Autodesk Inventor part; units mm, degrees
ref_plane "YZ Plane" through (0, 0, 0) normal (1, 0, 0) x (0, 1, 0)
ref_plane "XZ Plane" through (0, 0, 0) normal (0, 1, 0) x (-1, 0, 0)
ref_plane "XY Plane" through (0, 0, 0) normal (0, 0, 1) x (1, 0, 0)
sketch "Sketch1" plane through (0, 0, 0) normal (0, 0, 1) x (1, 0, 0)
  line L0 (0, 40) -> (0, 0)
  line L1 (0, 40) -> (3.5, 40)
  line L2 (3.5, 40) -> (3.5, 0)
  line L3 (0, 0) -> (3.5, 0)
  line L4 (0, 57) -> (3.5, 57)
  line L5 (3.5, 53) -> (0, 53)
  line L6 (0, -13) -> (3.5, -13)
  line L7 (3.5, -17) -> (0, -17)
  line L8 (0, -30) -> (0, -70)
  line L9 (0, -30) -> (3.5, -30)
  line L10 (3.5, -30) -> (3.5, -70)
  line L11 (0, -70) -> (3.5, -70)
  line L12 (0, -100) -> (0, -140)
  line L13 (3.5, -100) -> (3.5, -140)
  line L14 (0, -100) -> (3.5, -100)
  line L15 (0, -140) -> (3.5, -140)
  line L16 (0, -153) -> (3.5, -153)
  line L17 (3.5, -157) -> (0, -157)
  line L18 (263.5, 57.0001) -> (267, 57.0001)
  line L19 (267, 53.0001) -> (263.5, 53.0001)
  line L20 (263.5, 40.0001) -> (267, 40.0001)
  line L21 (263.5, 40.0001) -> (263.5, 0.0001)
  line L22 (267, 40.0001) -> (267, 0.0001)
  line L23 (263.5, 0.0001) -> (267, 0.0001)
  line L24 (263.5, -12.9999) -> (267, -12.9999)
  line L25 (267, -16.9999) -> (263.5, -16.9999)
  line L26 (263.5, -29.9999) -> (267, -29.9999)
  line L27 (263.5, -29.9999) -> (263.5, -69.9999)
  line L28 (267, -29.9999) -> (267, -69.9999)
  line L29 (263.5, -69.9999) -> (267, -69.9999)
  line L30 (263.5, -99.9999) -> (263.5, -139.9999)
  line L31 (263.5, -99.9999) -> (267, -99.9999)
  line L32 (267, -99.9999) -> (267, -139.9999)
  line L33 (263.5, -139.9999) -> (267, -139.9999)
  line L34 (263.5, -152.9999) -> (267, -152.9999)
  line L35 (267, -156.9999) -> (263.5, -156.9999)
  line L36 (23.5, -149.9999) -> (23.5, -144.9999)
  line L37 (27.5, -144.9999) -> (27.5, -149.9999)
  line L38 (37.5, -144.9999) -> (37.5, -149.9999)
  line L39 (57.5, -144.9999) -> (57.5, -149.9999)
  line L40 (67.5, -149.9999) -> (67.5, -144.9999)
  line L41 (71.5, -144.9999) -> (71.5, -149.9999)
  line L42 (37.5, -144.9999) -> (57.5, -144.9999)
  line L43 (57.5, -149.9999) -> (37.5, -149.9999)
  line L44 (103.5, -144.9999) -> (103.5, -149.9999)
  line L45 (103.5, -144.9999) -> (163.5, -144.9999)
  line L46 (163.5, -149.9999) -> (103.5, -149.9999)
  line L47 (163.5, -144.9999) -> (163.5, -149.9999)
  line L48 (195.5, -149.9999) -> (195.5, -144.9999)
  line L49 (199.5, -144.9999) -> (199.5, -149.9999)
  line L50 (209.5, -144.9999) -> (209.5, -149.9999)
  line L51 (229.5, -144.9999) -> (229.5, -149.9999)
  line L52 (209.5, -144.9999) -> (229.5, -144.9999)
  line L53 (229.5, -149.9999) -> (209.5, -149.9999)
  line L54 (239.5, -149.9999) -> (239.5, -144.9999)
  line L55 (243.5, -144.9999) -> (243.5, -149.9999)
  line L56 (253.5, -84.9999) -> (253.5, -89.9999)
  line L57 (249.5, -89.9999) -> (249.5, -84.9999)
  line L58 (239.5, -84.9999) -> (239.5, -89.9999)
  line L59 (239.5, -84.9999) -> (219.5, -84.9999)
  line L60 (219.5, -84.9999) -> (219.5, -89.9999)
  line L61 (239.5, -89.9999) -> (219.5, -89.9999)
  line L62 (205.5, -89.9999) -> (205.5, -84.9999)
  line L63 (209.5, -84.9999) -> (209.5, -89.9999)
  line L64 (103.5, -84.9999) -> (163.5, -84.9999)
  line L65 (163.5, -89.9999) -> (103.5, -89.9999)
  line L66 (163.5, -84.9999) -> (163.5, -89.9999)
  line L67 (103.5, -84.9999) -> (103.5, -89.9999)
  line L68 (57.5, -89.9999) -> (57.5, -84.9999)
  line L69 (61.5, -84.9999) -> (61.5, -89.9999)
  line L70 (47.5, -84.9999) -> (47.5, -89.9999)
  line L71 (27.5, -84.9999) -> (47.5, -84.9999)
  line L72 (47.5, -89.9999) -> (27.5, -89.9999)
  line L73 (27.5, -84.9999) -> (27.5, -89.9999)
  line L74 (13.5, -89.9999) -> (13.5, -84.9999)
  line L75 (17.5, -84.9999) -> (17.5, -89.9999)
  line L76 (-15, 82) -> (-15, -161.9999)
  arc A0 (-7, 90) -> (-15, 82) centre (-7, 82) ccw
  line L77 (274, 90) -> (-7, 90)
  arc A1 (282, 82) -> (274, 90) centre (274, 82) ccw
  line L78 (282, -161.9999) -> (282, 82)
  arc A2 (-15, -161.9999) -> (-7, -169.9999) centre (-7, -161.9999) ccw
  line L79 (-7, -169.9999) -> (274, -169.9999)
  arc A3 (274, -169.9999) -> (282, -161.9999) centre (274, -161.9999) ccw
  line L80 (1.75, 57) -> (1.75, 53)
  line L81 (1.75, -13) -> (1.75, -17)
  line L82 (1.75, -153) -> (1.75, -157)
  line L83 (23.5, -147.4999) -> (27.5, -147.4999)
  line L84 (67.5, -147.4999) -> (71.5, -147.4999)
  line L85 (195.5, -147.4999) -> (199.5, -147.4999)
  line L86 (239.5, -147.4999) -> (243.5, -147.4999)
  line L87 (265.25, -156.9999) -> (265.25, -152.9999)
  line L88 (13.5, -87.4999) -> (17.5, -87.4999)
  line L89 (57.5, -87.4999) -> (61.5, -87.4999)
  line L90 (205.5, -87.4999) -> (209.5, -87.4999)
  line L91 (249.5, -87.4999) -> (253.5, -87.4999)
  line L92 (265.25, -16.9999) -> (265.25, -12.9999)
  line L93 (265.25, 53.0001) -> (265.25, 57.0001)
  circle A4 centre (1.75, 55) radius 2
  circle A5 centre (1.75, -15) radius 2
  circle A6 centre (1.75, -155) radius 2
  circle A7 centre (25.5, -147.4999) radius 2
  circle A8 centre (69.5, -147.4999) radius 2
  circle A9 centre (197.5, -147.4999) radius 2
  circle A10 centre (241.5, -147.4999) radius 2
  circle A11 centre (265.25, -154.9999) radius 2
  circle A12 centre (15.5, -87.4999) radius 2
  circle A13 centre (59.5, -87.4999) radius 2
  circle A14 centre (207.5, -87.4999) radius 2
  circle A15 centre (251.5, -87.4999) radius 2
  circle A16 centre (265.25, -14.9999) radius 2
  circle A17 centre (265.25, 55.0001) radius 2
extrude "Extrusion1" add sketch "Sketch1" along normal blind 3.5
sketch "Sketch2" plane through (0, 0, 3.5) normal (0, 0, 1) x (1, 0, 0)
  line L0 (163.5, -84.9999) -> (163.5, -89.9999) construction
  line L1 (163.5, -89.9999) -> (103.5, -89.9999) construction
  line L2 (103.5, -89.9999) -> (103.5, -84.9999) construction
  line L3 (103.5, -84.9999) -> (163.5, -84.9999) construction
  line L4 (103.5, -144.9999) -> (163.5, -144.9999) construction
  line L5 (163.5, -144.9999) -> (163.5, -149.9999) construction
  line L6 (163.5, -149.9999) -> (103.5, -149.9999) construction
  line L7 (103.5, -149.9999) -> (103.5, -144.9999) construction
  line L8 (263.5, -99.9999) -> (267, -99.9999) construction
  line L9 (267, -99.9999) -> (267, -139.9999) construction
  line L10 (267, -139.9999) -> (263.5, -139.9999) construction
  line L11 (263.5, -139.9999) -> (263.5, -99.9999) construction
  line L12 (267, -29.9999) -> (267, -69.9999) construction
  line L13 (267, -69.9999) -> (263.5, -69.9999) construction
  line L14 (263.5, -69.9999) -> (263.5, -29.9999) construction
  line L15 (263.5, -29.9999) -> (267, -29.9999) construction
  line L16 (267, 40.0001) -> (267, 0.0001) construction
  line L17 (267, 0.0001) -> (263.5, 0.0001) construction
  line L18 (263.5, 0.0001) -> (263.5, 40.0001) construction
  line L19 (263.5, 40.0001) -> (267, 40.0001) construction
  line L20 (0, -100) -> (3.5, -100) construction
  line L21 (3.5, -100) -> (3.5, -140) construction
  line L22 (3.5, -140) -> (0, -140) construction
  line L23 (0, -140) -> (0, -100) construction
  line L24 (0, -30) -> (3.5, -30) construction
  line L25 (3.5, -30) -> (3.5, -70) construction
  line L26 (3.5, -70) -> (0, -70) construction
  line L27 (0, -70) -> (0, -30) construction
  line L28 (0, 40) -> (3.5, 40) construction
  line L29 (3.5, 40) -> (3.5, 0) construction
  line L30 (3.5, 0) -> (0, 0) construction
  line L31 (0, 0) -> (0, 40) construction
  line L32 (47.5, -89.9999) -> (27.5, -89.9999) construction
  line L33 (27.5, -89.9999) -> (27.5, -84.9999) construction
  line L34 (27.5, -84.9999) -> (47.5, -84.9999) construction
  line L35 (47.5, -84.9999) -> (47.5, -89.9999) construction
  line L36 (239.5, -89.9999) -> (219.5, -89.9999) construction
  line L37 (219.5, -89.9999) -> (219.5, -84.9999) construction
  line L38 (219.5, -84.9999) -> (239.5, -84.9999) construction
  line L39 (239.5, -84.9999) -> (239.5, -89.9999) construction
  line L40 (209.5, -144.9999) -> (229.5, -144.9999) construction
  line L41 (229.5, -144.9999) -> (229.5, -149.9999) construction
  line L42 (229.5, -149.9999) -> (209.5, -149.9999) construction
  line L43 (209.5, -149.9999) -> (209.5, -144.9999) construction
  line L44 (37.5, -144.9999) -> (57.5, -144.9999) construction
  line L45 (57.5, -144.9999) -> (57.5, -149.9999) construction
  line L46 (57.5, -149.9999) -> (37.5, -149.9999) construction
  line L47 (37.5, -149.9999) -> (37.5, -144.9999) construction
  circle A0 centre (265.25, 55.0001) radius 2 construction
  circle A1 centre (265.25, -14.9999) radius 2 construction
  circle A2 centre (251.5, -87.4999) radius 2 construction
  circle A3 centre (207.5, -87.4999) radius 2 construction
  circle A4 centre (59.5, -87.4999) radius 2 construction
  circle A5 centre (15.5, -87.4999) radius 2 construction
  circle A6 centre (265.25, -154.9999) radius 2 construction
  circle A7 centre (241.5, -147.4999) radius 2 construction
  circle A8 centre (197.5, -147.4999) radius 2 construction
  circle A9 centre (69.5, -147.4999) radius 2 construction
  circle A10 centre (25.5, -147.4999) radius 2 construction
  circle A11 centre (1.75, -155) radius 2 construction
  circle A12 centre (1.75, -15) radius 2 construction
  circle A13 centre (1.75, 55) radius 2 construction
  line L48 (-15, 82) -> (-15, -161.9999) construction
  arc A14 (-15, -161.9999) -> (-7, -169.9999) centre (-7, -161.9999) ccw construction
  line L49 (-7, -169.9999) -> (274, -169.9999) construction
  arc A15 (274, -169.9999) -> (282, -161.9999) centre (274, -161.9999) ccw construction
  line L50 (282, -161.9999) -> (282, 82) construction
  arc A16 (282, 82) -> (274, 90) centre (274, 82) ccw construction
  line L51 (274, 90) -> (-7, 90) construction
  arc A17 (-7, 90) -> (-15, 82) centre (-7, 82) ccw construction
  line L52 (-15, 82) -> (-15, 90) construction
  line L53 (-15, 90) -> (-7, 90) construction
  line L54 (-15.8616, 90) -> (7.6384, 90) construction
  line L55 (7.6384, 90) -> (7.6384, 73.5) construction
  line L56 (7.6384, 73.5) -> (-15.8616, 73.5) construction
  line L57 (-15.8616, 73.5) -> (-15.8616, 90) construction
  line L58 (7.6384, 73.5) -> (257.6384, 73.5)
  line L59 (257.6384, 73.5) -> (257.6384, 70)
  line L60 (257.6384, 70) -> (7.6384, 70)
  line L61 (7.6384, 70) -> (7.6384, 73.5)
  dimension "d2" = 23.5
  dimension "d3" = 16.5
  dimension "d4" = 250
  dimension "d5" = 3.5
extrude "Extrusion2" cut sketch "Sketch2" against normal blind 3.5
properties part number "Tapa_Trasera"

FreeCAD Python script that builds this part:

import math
import FreeCAD as App
import Part
import Sketcher

V = App.Vector
Q = App.Units.Quantity

doc = App.newDocument("Part")
body = doc.addObject("PartDesign::Body", "Body")

# Sketch on XY plane
sketch1 = body.newObject("Sketcher::SketchObject", "Sketch")
sketch1.AttachmentSupport = (doc.getObject("XY_Plane"), [""])
sketch1.MapMode = "FlatFace"
sketch1.addGeometry([
    Part.ArcOfCircle(Part.Circle(V(-7, 82, 0), V(0, 0, 1), 8), math.radians(90), math.radians(180)),  # 0
    Part.LineSegment(V(-15, 82, 0), V(-15, -162, 0)),  # 1
    Part.ArcOfCircle(Part.Circle(V(-7, -162, 0), V(0, 0, 1), 8), math.radians(180), math.radians(270)),  # 2
    Part.LineSegment(V(-7, -170, 0), V(274, -170, 0)),  # 3
    Part.ArcOfCircle(Part.Circle(V(274, -162, 0), V(0, 0, 1), 8), math.radians(-90), math.radians(0)),  # 4
    Part.LineSegment(V(282, -162, 0), V(282, 82, 0)),  # 5
    Part.ArcOfCircle(Part.Circle(V(274, 82, 0), V(0, 0, 1), 8), math.radians(0), math.radians(90)),  # 6
    Part.LineSegment(V(274, 90, 0), V(-7, 90, 0)),  # 7
    Part.Circle(V(1.8, -155, 0), V(0, 0, 1), 2),  # 8
    Part.Circle(V(25.5, -147.5, 0), V(0, 0, 1), 2),  # 9
    Part.LineSegment(V(37.5, -150, 0), V(37.5, -145, 0)),  # 10
    Part.LineSegment(V(37.5, -145, 0), V(57.5, -145, 0)),  # 11
    Part.LineSegment(V(57.5, -145, 0), V(57.5, -150, 0)),  # 12
    Part.LineSegment(V(57.5, -150, 0), V(37.5, -150, 0)),  # 13
    Part.LineSegment(V(0, -140, 0), V(0, -100, 0)),  # 14
    Part.LineSegment(V(0, -100, 0), V(3.5, -100, 0)),  # 15
    Part.LineSegment(V(3.5, -100, 0), V(3.5, -140, 0)),  # 16
    Part.LineSegment(V(3.5, -140, 0), V(0, -140, 0)),  # 17
    Part.Circle(V(69.5, -147.5, 0), V(0, 0, 1), 2),  # 18
    Part.Circle(V(15.5, -87.5, 0), V(0, 0, 1), 2),  # 19
    Part.LineSegment(V(27.5, -85, 0), V(47.5, -85, 0)),  # 20
    Part.LineSegment(V(47.5, -85, 0), V(47.5, -90, 0)),  # 21
    Part.LineSegment(V(47.5, -90, 0), V(27.5, -90, 0)),  # 22
    Part.LineSegment(V(27.5, -90, 0), V(27.5, -85, 0)),  # 23
    Part.LineSegment(V(0, -70, 0), V(0, -30, 0)),  # 24
    Part.LineSegment(V(0, -30, 0), V(3.5, -30, 0)),  # 25
    Part.LineSegment(V(3.5, -30, 0), V(3.5, -70, 0)),  # 26
    Part.LineSegment(V(3.5, -70, 0), V(0, -70, 0)),  # 27
    Part.Circle(V(59.5, -87.5, 0), V(0, 0, 1), 2),  # 28
    Part.LineSegment(V(103.5, -150, 0), V(103.5, -145, 0)),  # 29
    Part.LineSegment(V(103.5, -145, 0), V(163.5, -145, 0)),  # 30
    Part.LineSegment(V(163.5, -145, 0), V(163.5, -150, 0)),  # 31
    Part.LineSegment(V(163.5, -150, 0), V(103.5, -150, 0)),  # 32
    Part.Circle(V(197.5, -147.5, 0), V(0, 0, 1), 2),  # 33
    Part.LineSegment(V(209.5, -150, 0), V(209.5, -145, 0)),  # 34
    Part.LineSegment(V(209.5, -145, 0), V(229.5, -145, 0)),  # 35
    Part.LineSegment(V(229.5, -145, 0), V(229.5, -150, 0)),  # 36
    Part.LineSegment(V(229.5, -150, 0), V(209.5, -150, 0)),  # 37
    Part.Circle(V(241.5, -147.5, 0), V(0, 0, 1), 2),  # 38
    Part.Circle(V(265.2, -155, 0), V(0, 0, 1), 2),  # 39
    Part.LineSegment(V(263.5, -140, 0), V(263.5, -100, 0)),  # 40
    Part.LineSegment(V(263.5, -100, 0), V(267, -100, 0)),  # 41
    Part.LineSegment(V(267, -100, 0), V(267, -140, 0)),  # 42
    Part.LineSegment(V(267, -140, 0), V(263.5, -140, 0)),  # 43
    Part.LineSegment(V(103.5, -90, 0), V(103.5, -85, 0)),  # 44
    Part.LineSegment(V(103.5, -85, 0), V(163.5, -85, 0)),  # 45
    Part.LineSegment(V(163.5, -85, 0), V(163.5, -90, 0)),  # 46
    Part.LineSegment(V(163.5, -90, 0), V(103.5, -90, 0)),  # 47
    Part.Circle(V(207.5, -87.5, 0), V(0, 0, 1), 2),  # 48
    Part.LineSegment(V(219.5, -85, 0), V(239.5, -85, 0)),  # 49
    Part.LineSegment(V(239.5, -85, 0), V(239.5, -90, 0)),  # 50
    Part.LineSegment(V(239.5, -90, 0), V(219.5, -90, 0)),  # 51
    Part.LineSegment(V(219.5, -90, 0), V(219.5, -85, 0)),  # 52
    Part.Circle(V(251.5, -87.5, 0), V(0, 0, 1), 2),  # 53
    Part.LineSegment(V(263.5, -70, 0), V(263.5, -30, 0)),  # 54
    Part.LineSegment(V(263.5, -30, 0), V(267, -30, 0)),  # 55
    Part.LineSegment(V(267, -30, 0), V(267, -70, 0)),  # 56
    Part.LineSegment(V(267, -70, 0), V(263.5, -70, 0)),  # 57
    Part.Circle(V(1.8, -15, 0), V(0, 0, 1), 2),  # 58
    Part.LineSegment(V(0, 0, 0), V(0, 40, 0)),  # 59
    Part.LineSegment(V(0, 40, 0), V(3.5, 40, 0)),  # 60
    Part.LineSegment(V(3.5, 40, 0), V(3.5, 0, 0)),  # 61
    Part.LineSegment(V(3.5, 0, 0), V(0, 0, 0)),  # 62
    Part.Circle(V(1.8, 55, 0), V(0, 0, 1), 2),  # 63
    Part.Circle(V(265.2, -15, 0), V(0, 0, 1), 2),  # 64
    Part.LineSegment(V(263.5, 0, 0), V(263.5, 40, 0)),  # 65
    Part.LineSegment(V(263.5, 40, 0), V(267, 40, 0)),  # 66
    Part.LineSegment(V(267, 40, 0), V(267, 0, 0)),  # 67
    Part.LineSegment(V(267, 0, 0), V(263.5, 0, 0)),  # 68
    Part.Circle(V(265.2, 55, 0), V(0, 0, 1), 2),  # 69
], False)
sketch1.addConstraint([
    Sketcher.Constraint("Tangent", 0, 2, 1, 1),
    Sketcher.Constraint("Tangent", 1, 2, 2, 1),
    Sketcher.Constraint("Tangent", 2, 2, 3, 1),
    Sketcher.Constraint("Tangent", 3, 2, 4, 1),
    Sketcher.Constraint("Tangent", 4, 2, 5, 1),
    Sketcher.Constraint("Tangent", 5, 2, 6, 1),
    Sketcher.Constraint("Tangent", 6, 2, 7, 1),
    Sketcher.Constraint("Tangent", 7, 2, 0, 1),
    Sketcher.Constraint("Coincident", 10, 2, 11, 1),
    Sketcher.Constraint("Coincident", 11, 2, 12, 1),
    Sketcher.Constraint("Coincident", 12, 2, 13, 1),
    Sketcher.Constraint("Coincident", 13, 2, 10, 1),
    Sketcher.Constraint("Coincident", 14, 2, 15, 1),
    Sketcher.Constraint("Coincident", 15, 2, 16, 1),
    Sketcher.Constraint("Coincident", 16, 2, 17, 1),
    Sketcher.Constraint("Coincident", 17, 2, 14, 1),
    Sketcher.Constraint("Coincident", 20, 2, 21, 1),
    Sketcher.Constraint("Coincident", 21, 2, 22, 1),
    Sketcher.Constraint("Coincident", 22, 2, 23, 1),
    Sketcher.Constraint("Coincident", 23, 2, 20, 1),
    Sketcher.Constraint("Coincident", 24, 2, 25, 1),
    Sketcher.Constraint("Coincident", 25, 2, 26, 1),
    Sketcher.Constraint("Coincident", 26, 2, 27, 1),
    Sketcher.Constraint("Coincident", 27, 2, 24, 1),
    Sketcher.Constraint("Coincident", 29, 2, 30, 1),
    Sketcher.Constraint("Coincident", 30, 2, 31, 1),
    Sketcher.Constraint("Coincident", 31, 2, 32, 1),
    Sketcher.Constraint("Coincident", 32, 2, 29, 1),
    Sketcher.Constraint("Coincident", 34, 2, 35, 1),
    Sketcher.Constraint("Coincident", 35, 2, 36, 1),
    Sketcher.Constraint("Coincident", 36, 2, 37, 1),
    Sketcher.Constraint("Coincident", 37, 2, 34, 1),
    Sketcher.Constraint("Coincident", 40, 2, 41, 1),
    Sketcher.Constraint("Coincident", 41, 2, 42, 1),
    Sketcher.Constraint("Coincident", 42, 2, 43, 1),
    Sketcher.Constraint("Coincident", 43, 2, 40, 1),
    Sketcher.Constraint("Coincident", 44, 2, 45, 1),
    Sketcher.Constraint("Coincident", 45, 2, 46, 1),
    Sketcher.Constraint("Coincident", 46, 2, 47, 1),
    Sketcher.Constraint("Coincident", 47, 2, 44, 1),
    Sketcher.Constraint("Coincident", 49, 2, 50, 1),
    Sketcher.Constraint("Coincident", 50, 2, 51, 1),
    Sketcher.Constraint("Coincident", 51, 2, 52, 1),
    Sketcher.Constraint("Coincident", 52, 2, 49, 1),
    Sketcher.Constraint("Coincident", 54, 2, 55, 1),
    Sketcher.Constraint("Coincident", 55, 2, 56, 1),
    Sketcher.Constraint("Coincident", 56, 2, 57, 1),
    Sketcher.Constraint("Coincident", 57, 2, 54, 1),
    Sketcher.Constraint("Coincident", 59, 2, 60, 1),
    Sketcher.Constraint("Coincident", 60, 2, 61, 1),
    Sketcher.Constraint("Coincident", 61, 2, 62, 1),
    Sketcher.Constraint("Coincident", 62, 2, 59, 1),
    Sketcher.Constraint("Coincident", 65, 2, 66, 1),
    Sketcher.Constraint("Coincident", 66, 2, 67, 1),
    Sketcher.Constraint("Coincident", 67, 2, 68, 1),
    Sketcher.Constraint("Coincident", 68, 2, 65, 1),
    Sketcher.Constraint("Vertical", 1),
    Sketcher.Constraint("Horizontal", 3),
    Sketcher.Constraint("Vertical", 5),
    Sketcher.Constraint("Horizontal", 7),
    Sketcher.Constraint("Vertical", 10),
    Sketcher.Constraint("Horizontal", 11),
    Sketcher.Constraint("Vertical", 12),
    Sketcher.Constraint("Horizontal", 13),
    Sketcher.Constraint("Vertical", 14),
    Sketcher.Constraint("Horizontal", 15),
    Sketcher.Constraint("Vertical", 16),
    Sketcher.Constraint("Horizontal", 17),
    Sketcher.Constraint("Horizontal", 20),
    Sketcher.Constraint("Vertical", 21),
    Sketcher.Constraint("Horizontal", 22),
    Sketcher.Constraint("Vertical", 23),
    Sketcher.Constraint("Vertical", 24),
    Sketcher.Constraint("Horizontal", 25),
    Sketcher.Constraint("Vertical", 26),
    Sketcher.Constraint("Horizontal", 27),
    Sketcher.Constraint("Vertical", 29),
    Sketcher.Constraint("Horizontal", 30),
    Sketcher.Constraint("Vertical", 31),
    Sketcher.Constraint("Horizontal", 32),
    Sketcher.Constraint("Vertical", 34),
    Sketcher.Constraint("Horizontal", 35),
    Sketcher.Constraint("Vertical", 36),
    Sketcher.Constraint("Horizontal", 37),
    Sketcher.Constraint("Vertical", 40),
    Sketcher.Constraint("Horizontal", 41),
    Sketcher.Constraint("Vertical", 42),
    Sketcher.Constraint("Horizontal", 43),
    Sketcher.Constraint("Vertical", 44),
    Sketcher.Constraint("Horizontal", 45),
    Sketcher.Constraint("Vertical", 46),
    Sketcher.Constraint("Horizontal", 47),
    Sketcher.Constraint("Horizontal", 49),
    Sketcher.Constraint("Vertical", 50),
    Sketcher.Constraint("Horizontal", 51),
    Sketcher.Constraint("Vertical", 52),
    Sketcher.Constraint("Vertical", 54),
    Sketcher.Constraint("Horizontal", 55),
    Sketcher.Constraint("Vertical", 56),
    Sketcher.Constraint("Horizontal", 57),
    Sketcher.Constraint("Vertical", 59),
    Sketcher.Constraint("Horizontal", 60),
    Sketcher.Constraint("Vertical", 61),
    Sketcher.Constraint("Horizontal", 62),
    Sketcher.Constraint("Vertical", 65),
    Sketcher.Constraint("Horizontal", 66),
    Sketcher.Constraint("Vertical", 67),
    Sketcher.Constraint("Horizontal", 68),
    Sketcher.Constraint("Coincident", 62, 2, -1, 1),
    Sketcher.Constraint("Equal", 0, 2),
    Sketcher.Constraint("Equal", 2, 4),
    Sketcher.Constraint("Equal", 4, 6),
    Sketcher.Constraint("Equal", 8, 9),
    Sketcher.Constraint("Equal", 9, 18),
    Sketcher.Constraint("Equal", 18, 19),
    Sketcher.Constraint("Equal", 19, 28),
    Sketcher.Constraint("Equal", 28, 33),
    Sketcher.Constraint("Equal", 33, 38),
    Sketcher.Constraint("Equal", 38, 39),
    Sketcher.Constraint("Equal", 39, 48),
    Sketcher.Constraint("Equal", 48, 53),
    Sketcher.Constraint("Equal", 53, 58),
    Sketcher.Constraint("Equal", 58, 63),
    Sketcher.Constraint("Equal", 63, 64),
    Sketcher.Constraint("Equal", 64, 69),
    Sketcher.Constraint("PointOnObject", 14, 2, -2),
    Sketcher.Constraint("PointOnObject", 24, 2, -2),
    Sketcher.Constraint("PointOnObject", 67, 2, -1),
    Sketcher.Constraint("Horizontal", 9, 3, 18, 3),
    Sketcher.Constraint("Horizontal", 19, 3, 28, 3),
    Sketcher.Constraint("Horizontal", 18, 3, 33, 3),
    Sketcher.Constraint("Horizontal", 33, 3, 38, 3),
    Sketcher.Constraint("Horizontal", 8, 3, 39, 3),
    Sketcher.Constraint("Horizontal", 28, 3, 48, 3),
    Sketcher.Constraint("Horizontal", 48, 3, 53, 3),
    Sketcher.Constraint("Horizontal", 58, 3, 64, 3),
    Sketcher.Constraint("Horizontal", 63, 3, 69, 3),
    Sketcher.Constraint("Horizontal", 11, 2, 29, 2),
    Sketcher.Constraint("Horizontal", 13, 2, 31, 2),
    Sketcher.Constraint("Horizontal", 30, 2, 34, 2),
    Sketcher.Constraint("Horizontal", 32, 2, 36, 2),
    Sketcher.Constraint("Horizontal", 15, 2, 40, 2),
    Sketcher.Constraint("Horizontal", 17, 2, 42, 2),
    Sketcher.Constraint("Horizontal", 23, 2, 44, 2),
    Sketcher.Constraint("Horizontal", 22, 2, 46, 2),
    Sketcher.Constraint("Horizontal", 45, 2, 49, 2),
    Sketcher.Constraint("Horizontal", 47, 2, 50, 2),
    Sketcher.Constraint("Horizontal", 25, 2, 54, 2),
    Sketcher.Constraint("Horizontal", 27, 2, 56, 2),
    Sketcher.Constraint("Horizontal", 60, 2, 65, 2),
    Sketcher.Constraint("Vertical", 8, 3, 58, 3),
    Sketcher.Constraint("Vertical", 58, 3, 63, 3),
    Sketcher.Constraint("Vertical", 39, 3, 64, 3),
    Sketcher.Constraint("Vertical", 64, 3, 69, 3),
    Sketcher.Constraint("Vertical", 16, 2, 25, 2),
    Sketcher.Constraint("Vertical", 32, 2, 44, 2),
    Sketcher.Constraint("Vertical", 31, 2, 45, 2),
    Sketcher.Constraint("Vertical", 43, 2, 54, 2),
    Sketcher.Constraint("Vertical", 42, 2, 55, 2),
    Sketcher.Constraint("Vertical", 26, 2, 60, 2),
    Sketcher.Constraint("Vertical", 57, 2, 65, 2),
    Sketcher.Constraint("Vertical", 56, 2, 66, 2),
    Sketcher.Constraint("Equal", 13, 20),
    Sketcher.Constraint("Equal", 22, 35),
    Sketcher.Constraint("Equal", 27, 41),
    Sketcher.Constraint("Equal", 37, 49),
    Sketcher.Constraint("Equal", 12, 21),
    Sketcher.Constraint("Equal", 16, 24),
    Sketcher.Constraint("Equal", 56, 59),
    Sketcher.Constraint("Diameter", 8, Q("4 mm")),
    Sketcher.Constraint("Radius", 0, Q("8 mm")),
    Sketcher.Constraint("DistanceX", 3, 1, 3, 2, Q("281 mm")),
    Sketcher.Constraint("DistanceX", 11, 1, 11, 2, Q("20 mm")),
    Sketcher.Constraint("DistanceX", 30, 1, 30, 2, Q("60 mm")),
    Sketcher.Constraint("DistanceY", 1, 2, 1, 1, Q("244 mm")),
    Sketcher.Constraint("DistanceY", 10, 1, 10, 2, Q("5 mm")),
    Sketcher.Constraint("DistanceY", 14, 1, 14, 2, Q("40 mm")),
    Sketcher.Constraint("DistanceX", 15, 1, 15, 2, Q("3.5 mm")),
    Sketcher.Constraint("DistanceX", 0, 3, -1, 1, Q("7 mm")),
    Sketcher.Constraint("DistanceY", -1, 1, 0, 3, Q("82 mm")),
    Sketcher.Constraint("DistanceY", 8, 3, -1, 1, Q("155 mm")),
    Sketcher.Constraint("DistanceY", 58, 3, -1, 1, Q("15 mm")),
    Sketcher.Constraint("DistanceY", -1, 1, 63, 3, Q("55 mm")),
    Sketcher.Constraint("DistanceY", 10, 2, -1, 1, Q("145 mm")),
    Sketcher.Constraint("DistanceY", 14, 2, -1, 1, Q("100 mm")),
    Sketcher.Constraint("DistanceY", 20, 2, -1, 1, Q("85 mm")),
    Sketcher.Constraint("DistanceY", 24, 2, -1, 1, Q("30 mm")),
    Sketcher.Constraint("DistanceX", -1, 1, 41, 2, Q("267 mm")),
    Sketcher.Constraint("DistanceX", -1, 1, 9, 3, Q("25.5 mm")),
    Sketcher.Constraint("DistanceY", 9, 3, -1, 1, Q("147.5 mm")),
    Sketcher.Constraint("DistanceX", -1, 1, 18, 3, Q("69.5 mm")),
    Sketcher.Constraint("DistanceX", -1, 1, 19, 3, Q("15.5 mm")),
    Sketcher.Constraint("DistanceY", 19, 3, -1, 1, Q("87.5 mm")),
    Sketcher.Constraint("DistanceX", -1, 1, 28, 3, Q("59.5 mm")),
    Sketcher.Constraint("DistanceX", -1, 1, 33, 3, Q("197.5 mm")),
    Sketcher.Constraint("DistanceX", -1, 1, 38, 3, Q("241.5 mm")),
    Sketcher.Constraint("DistanceX", -1, 1, 48, 3, Q("207.5 mm")),
    Sketcher.Constraint("DistanceX", -1, 1, 53, 3, Q("251.5 mm")),
    Sketcher.Constraint("DistanceX", -1, 1, 10, 2, Q("37.5 mm")),
    Sketcher.Constraint("DistanceX", -1, 1, 20, 2, Q("47.5 mm")),
    Sketcher.Constraint("DistanceX", -1, 1, 29, 2, Q("103.5 mm")),
    Sketcher.Constraint("DistanceX", -1, 1, 34, 2, Q("209.5 mm")),
    Sketcher.Constraint("DistanceX", -1, 1, 49, 2, Q("239.5 mm")),
    Sketcher.Constraint("DistanceX", -1, 1, 8, 3, Q("1.75 mm")),
    Sketcher.Constraint("DistanceX", -1, 1, 39, 3, Q("265.25 mm")),
])
pad1 = body.newObject("PartDesign::Pad", "Pad")
pad1.Profile = sketch1
pad1.Length = 3.5

# Sketch on XY plane
sketch2 = body.newObject("Sketcher::SketchObject", "Sketch001")
sketch2.AttachmentSupport = (doc.getObject("XY_Plane"), [""])
sketch2.MapMode = "FlatFace"
sketch2.AttachmentOffset = App.Placement(V(0, 0, 3.5), App.Rotation())
sketch2.addGeometry([
    Part.LineSegment(V(257.6, 73.5, 0), V(7.6, 73.5, 0)),
    Part.LineSegment(V(7.6, 73.5, 0), V(7.6, 70, 0)),
    Part.LineSegment(V(7.6, 70, 0), V(257.6, 70, 0)),
    Part.LineSegment(V(257.6, 70, 0), V(257.6, 73.5, 0)),
], False)
sketch2.addConstraint([
    Sketcher.Constraint("Coincident", 0, 2, 1, 1),
    Sketcher.Constraint("Coincident", 1, 2, 2, 1),
    Sketcher.Constraint("Coincident", 2, 2, 3, 1),
    Sketcher.Constraint("Coincident", 3, 2, 0, 1),
    Sketcher.Constraint("Horizontal", 0),
    Sketcher.Constraint("Vertical", 1),
    Sketcher.Constraint("Horizontal", 2),
    Sketcher.Constraint("Vertical", 3),
    Sketcher.Constraint("DistanceX", 0, 2, 0, 1, Q("250 mm")),
    Sketcher.Constraint("DistanceY", 1, 2, 1, 1, Q("3.5 mm")),
    Sketcher.Constraint("DistanceY", -1, 1, 1, 2, Q("70 mm")),
    Sketcher.Constraint("DistanceX", -1, 1, 0, 2, Q("7.6384 mm")),
])
pocket1 = body.newObject("PartDesign::Pocket", "Pocket")
pocket1.Profile = sketch2
pocket1.Length = 3.5

doc.recompute()
